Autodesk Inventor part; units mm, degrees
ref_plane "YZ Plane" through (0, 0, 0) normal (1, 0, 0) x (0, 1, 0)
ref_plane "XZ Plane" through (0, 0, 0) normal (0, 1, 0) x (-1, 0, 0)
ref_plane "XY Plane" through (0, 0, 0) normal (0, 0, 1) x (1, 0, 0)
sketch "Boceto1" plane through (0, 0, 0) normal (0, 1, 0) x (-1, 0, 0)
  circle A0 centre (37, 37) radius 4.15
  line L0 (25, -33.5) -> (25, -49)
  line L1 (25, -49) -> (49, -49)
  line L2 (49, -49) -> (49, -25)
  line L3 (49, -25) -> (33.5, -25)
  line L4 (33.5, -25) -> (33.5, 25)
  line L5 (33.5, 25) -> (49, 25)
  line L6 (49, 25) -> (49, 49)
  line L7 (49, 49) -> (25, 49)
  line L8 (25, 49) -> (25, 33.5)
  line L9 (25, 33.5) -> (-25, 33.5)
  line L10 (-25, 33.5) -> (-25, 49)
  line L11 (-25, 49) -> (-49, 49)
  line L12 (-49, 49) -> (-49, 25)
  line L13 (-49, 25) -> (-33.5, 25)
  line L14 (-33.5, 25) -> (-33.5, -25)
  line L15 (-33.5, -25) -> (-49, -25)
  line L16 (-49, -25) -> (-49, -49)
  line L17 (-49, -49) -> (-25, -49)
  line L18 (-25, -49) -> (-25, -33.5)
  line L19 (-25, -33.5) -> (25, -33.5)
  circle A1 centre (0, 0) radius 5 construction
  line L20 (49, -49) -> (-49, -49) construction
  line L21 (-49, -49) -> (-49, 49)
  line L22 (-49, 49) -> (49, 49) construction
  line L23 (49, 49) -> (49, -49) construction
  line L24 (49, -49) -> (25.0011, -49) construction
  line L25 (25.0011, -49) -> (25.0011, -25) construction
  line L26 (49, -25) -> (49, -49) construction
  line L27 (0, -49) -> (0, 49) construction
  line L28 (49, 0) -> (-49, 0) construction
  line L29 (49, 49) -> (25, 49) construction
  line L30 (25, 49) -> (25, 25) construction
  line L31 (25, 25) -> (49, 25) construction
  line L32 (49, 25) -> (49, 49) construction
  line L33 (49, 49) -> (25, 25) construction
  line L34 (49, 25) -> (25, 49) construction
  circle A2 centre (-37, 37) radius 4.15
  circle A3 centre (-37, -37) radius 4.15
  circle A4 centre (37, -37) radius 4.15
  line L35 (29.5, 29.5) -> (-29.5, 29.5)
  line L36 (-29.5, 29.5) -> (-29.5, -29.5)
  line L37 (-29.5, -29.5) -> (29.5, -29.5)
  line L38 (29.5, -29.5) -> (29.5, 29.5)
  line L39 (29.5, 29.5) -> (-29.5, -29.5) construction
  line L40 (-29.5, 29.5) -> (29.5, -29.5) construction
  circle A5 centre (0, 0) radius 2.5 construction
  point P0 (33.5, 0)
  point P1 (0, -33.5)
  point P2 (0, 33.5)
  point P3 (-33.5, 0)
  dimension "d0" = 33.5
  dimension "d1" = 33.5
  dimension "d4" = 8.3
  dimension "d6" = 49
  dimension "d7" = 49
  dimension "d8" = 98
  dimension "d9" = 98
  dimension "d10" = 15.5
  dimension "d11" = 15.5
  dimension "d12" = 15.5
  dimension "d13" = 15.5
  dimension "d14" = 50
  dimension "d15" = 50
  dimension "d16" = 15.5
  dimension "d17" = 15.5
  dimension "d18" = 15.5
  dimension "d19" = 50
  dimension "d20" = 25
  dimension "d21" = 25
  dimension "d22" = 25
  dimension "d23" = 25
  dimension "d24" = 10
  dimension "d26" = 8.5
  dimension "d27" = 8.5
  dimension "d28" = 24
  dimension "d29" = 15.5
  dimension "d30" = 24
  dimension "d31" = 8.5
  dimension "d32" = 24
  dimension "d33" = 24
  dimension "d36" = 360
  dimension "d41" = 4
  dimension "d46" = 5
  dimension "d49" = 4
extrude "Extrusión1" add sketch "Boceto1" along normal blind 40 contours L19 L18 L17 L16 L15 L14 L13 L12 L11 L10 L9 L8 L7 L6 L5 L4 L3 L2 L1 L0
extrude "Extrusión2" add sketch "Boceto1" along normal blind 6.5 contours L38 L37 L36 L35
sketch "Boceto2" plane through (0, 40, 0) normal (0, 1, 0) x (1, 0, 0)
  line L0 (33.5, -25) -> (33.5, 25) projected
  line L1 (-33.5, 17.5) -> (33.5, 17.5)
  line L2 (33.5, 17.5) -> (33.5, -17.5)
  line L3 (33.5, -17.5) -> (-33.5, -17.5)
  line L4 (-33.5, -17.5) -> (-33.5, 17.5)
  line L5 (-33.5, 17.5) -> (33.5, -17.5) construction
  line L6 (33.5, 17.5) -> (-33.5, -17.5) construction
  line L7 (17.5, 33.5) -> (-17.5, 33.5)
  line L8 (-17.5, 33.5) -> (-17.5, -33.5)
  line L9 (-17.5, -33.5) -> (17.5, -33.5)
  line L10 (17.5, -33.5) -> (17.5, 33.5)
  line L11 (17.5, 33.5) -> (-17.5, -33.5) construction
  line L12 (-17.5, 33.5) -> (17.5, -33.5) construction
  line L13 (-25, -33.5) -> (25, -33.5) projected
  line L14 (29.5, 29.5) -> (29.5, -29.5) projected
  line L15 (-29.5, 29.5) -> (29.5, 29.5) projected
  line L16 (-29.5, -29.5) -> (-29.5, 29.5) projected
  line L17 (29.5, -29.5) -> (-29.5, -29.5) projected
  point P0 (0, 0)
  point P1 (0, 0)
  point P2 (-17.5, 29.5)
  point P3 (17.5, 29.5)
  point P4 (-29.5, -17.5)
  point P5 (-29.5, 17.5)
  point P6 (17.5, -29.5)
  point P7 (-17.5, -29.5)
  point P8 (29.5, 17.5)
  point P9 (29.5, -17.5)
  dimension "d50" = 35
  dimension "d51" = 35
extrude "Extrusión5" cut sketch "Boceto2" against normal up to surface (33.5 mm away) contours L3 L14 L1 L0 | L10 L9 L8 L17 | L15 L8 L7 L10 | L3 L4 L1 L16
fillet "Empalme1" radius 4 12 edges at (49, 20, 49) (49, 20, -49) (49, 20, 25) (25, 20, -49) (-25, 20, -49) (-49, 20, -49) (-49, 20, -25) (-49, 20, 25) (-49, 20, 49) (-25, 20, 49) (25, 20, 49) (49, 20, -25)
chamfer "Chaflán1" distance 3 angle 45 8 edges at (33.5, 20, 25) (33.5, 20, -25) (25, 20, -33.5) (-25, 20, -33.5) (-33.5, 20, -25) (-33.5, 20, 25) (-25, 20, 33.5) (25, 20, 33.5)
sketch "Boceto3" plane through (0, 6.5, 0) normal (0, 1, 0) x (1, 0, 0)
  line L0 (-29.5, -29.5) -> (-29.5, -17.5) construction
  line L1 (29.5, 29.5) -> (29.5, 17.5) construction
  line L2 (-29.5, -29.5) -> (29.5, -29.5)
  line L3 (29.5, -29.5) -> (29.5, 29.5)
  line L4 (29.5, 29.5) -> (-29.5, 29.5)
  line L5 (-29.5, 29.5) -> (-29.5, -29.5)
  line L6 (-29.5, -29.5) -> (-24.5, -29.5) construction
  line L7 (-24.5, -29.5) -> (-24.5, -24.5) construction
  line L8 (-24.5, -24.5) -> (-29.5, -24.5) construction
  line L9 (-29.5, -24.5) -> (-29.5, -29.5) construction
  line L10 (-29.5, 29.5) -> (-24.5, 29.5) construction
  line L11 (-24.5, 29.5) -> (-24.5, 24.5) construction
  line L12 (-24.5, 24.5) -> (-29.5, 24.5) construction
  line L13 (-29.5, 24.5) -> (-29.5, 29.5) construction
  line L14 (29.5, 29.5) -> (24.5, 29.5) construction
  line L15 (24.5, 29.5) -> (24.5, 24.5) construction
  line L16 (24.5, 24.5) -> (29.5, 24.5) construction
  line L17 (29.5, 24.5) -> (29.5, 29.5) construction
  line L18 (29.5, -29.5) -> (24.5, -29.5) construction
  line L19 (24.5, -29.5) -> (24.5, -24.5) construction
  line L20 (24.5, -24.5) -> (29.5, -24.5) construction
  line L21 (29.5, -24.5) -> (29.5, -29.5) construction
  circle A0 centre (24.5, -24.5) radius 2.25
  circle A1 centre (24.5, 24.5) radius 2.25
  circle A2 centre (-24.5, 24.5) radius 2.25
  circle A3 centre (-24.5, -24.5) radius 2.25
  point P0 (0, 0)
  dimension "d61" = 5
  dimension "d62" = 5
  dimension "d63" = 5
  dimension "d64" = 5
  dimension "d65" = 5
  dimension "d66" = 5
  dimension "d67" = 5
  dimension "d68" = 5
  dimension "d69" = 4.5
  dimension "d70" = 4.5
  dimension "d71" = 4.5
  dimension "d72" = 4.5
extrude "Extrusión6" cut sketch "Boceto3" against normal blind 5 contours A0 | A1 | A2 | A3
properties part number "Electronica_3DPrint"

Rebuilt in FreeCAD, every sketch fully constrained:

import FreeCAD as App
import Part
import Sketcher

V = App.Vector
Q = App.Units.Quantity


def edges_at(feature, points):
    """Names of the edges that pass closest to the given points."""
    edges = feature.Shape.Edges
    near = lambda p: min(range(len(edges)), key=lambda i: edges[i].distToShape(Part.Vertex(*p))[0])
    return sorted({f"Edge{near(p) + 1}" for p in points})


def add_polygon(sketch, points):
    """Adds a closed chain of lines whose ends are joined by coincident constraints."""
    first, n = sketch.GeometryCount, len(points)
    for a, b in zip(points, points[1:] + points[:1]):
        sketch.addGeometry(Part.LineSegment(App.Vector(*a, 0), App.Vector(*b, 0)), False)
    for i in range(n):
        sketch.addConstraint(Sketcher.Constraint("Coincident", first + i, 2, first + (i + 1) % n, 1))

doc = App.newDocument("Part")
params = doc.addObject("Spreadsheet::Sheet", "Params")
for row, (alias, value) in enumerate([
    ("sketch1_diameter", "8.3 mm"),
    ("sketch1_width", "50 mm"),
    ("sketch1_width2", "24 mm"),
    ("sketch1_width3", "15.5 mm"),
    ("pad1_length", "40 mm"),
    ("sketch2_width", "59 mm"),
    ("pad2_length", "6.5 mm"),
    ("sketch3_width", "35 mm"),
    ("sketch3_width2", "4 mm"),
    ("pocket1_length", "33.5 mm"),
    ("fillet_radius", "4 mm"),
    ("chamfer_size", "3 mm"),
    ("sketch4_diameter", "4.5 mm"),
    ("pocket2_length", "5 mm"),
], start=1):
    params.set(f"A{row}", alias)
    params.set(f"B{row}", "=" + value)
    params.setAlias(f"B{row}", alias)

body = doc.addObject("PartDesign::Body", "Body")

# Sketch on XZ plane
sketch1 = doc.addObject("Sketcher::SketchObject", "Sketch")
body.addObject(sketch1)
sketch1.AttachmentSupport = (doc.XZ_Plane, [""])
sketch1.MapMode = "FlatFace"
add_polygon(sketch1, [(25, -33.5), (-25, -33.5), (-25, -49), (-49, -49), (-49, -25), (-33.5, -25), (-33.5, 25), (-49, 25), (-49, 49), (-25, 49), (-25, 33.5), (25, 33.5), (25, 49), (49, 49), (49, 25), (33.5, 25), (33.5, -25), (49, -25), (49, -49), (25, -49)])  # lines 0-19
sketch1.addGeometry(Part.Circle(V(37, -37, 0), V(0, 0, 1), 4.2), False)  # 20
add_polygon(sketch1, [(29.5, 29.5), (-29.5, 29.5), (-29.5, -29.5), (29.5, -29.5)])  # lines 21-24
sketch1.addGeometry(Part.Circle(V(-37, -37, 0), V(0, 0, 1), 4.2), False)  # 25
sketch1.addGeometry(Part.Circle(V(37, 37, 0), V(0, 0, 1), 4.2), False)  # 26
sketch1.addGeometry(Part.Circle(V(-37, 37, 0), V(0, 0, 1), 4.2), False)  # 27
sketch1.addConstraint([
    Sketcher.Constraint("Horizontal", 0),
    Sketcher.Constraint("Vertical", 1),
    Sketcher.Constraint("Horizontal", 2),
    Sketcher.Constraint("Vertical", 3),
    Sketcher.Constraint("Horizontal", 4),
    Sketcher.Constraint("Vertical", 5),
    Sketcher.Constraint("Horizontal", 6),
    Sketcher.Constraint("Vertical", 7),
    Sketcher.Constraint("Horizontal", 8),
    Sketcher.Constraint("Vertical", 9),
    Sketcher.Constraint("Horizontal", 10),
    Sketcher.Constraint("Vertical", 11),
    Sketcher.Constraint("Horizontal", 12),
    Sketcher.Constraint("Vertical", 13),
    Sketcher.Constraint("Horizontal", 14),
    Sketcher.Constraint("Vertical", 15),
    Sketcher.Constraint("Horizontal", 16),
    Sketcher.Constraint("Vertical", 17),
    Sketcher.Constraint("Horizontal", 18),
    Sketcher.Constraint("Vertical", 19),
    Sketcher.Constraint("Horizontal", 21),
    Sketcher.Constraint("Vertical", 22),
    Sketcher.Constraint("Horizontal", 23),
    Sketcher.Constraint("Vertical", 24),
    Sketcher.Constraint("Equal", 20, 25),
    Sketcher.Constraint("Equal", 25, 26),
    Sketcher.Constraint("Equal", 26, 27),
    Sketcher.Constraint("Symmetric", 25, 3, 26, 3, -1, 1),
    Sketcher.Constraint("Symmetric", 20, 3, 27, 3, -1, 1),
    Sketcher.Constraint("Symmetric", 0, 2, 10, 2, -1, 1),
    Sketcher.Constraint("Symmetric", 2, 2, 12, 2, -1, 1),
    Sketcher.Constraint("Symmetric", 4, 2, 14, 2, -1, 1),
    Sketcher.Constraint("Symmetric", 6, 2, 16, 2, -1, 1),
    Sketcher.Constraint("Symmetric", 8, 2, 18, 2, -1, 1),
    Sketcher.Constraint("Symmetric", 21, 2, 23, 2, -1, 1),
    Sketcher.Constraint("Symmetric", 20, 3, 25, 3, -2),
    Sketcher.Constraint("Symmetric", 8, 2, 11, 2, -2),
    Sketcher.Constraint("Symmetric", 6, 2, 13, 2, -2),
    Sketcher.Constraint("Equal", 16, 1),
    Sketcher.Constraint("Equal", 18, 3),
    Sketcher.Constraint("Equal", 10, 5),
    Sketcher.Constraint("Equal", 23, 22),
    Sketcher.Constraint("Diameter", 20, Q("8.3 mm")),
    Sketcher.Constraint("DistanceX", 0, 2, 0, 1, Q("50 mm")),
    Sketcher.Constraint("DistanceX", 2, 2, 2, 1, Q("24 mm")),
    Sketcher.Constraint("DistanceX", 4, 1, 4, 2, Q("15.5 mm")),
    Sketcher.Constraint("DistanceX", 5, 2, 21, 2, Q("4 mm")),
    Sketcher.Constraint("DistanceX", -1, 1, 20, 3, Q("37 mm")),
    Sketcher.Constraint("DistanceY", 20, 3, -1, 1, Q("37 mm")),
])
sketch1.setExpression("Constraints[66]", "Params.sketch1_diameter")
sketch1.setExpression("Constraints[67]", "Params.sketch1_width")
sketch1.setExpression("Constraints[68]", "Params.sketch1_width2")
sketch1.setExpression("Constraints[69]", "Params.sketch1_width3")
pad1 = doc.addObject("PartDesign::Pad", "Pad")
body.addObject(pad1)
pad1.Profile = sketch1
pad1.setExpression("Length", "Params.pad1_length")
pad1.Reversed = True

# Sketch on XZ plane
sketch2 = doc.addObject("Sketcher::SketchObject", "Sketch001")
body.addObject(sketch2)
sketch2.AttachmentSupport = (doc.XZ_Plane, [""])
sketch2.MapMode = "FlatFace"
add_polygon(sketch2, [(-30, -30), (-30, 30), (30, 30), (30, -30)])  # lines 0-3
sketch2.addConstraint([
    Sketcher.Constraint("Vertical", 0),
    Sketcher.Constraint("Horizontal", 1),
    Sketcher.Constraint("Vertical", 2),
    Sketcher.Constraint("Horizontal", 3),
    Sketcher.Constraint("Symmetric", 0, 2, 2, 2, -1, 1),
    Sketcher.Constraint("Equal", 3, 0),
    Sketcher.Constraint("DistanceX", 1, 1, 1, 2, Q("59 mm")),
])
sketch2.setExpression("Constraints[10]", "Params.sketch2_width")
pad2 = doc.addObject("PartDesign::Pad", "Pad001")
body.addObject(pad2)
pad2.Profile = sketch2
pad2.setExpression("Length", "Params.pad2_length")
pad2.Reversed = True

# Sketch on XZ plane
sketch3 = doc.addObject("Sketcher::SketchObject", "Sketch002")
body.addObject(sketch3)
sketch3.AttachmentSupport = (doc.XZ_Plane, [""])
sketch3.MapMode = "FlatFace"
sketch3.AttachmentOffset = App.Placement(V(0, 0, -40), App.Rotation())
add_polygon(sketch3, [(29.5, 17.5), (33.5, 17.5), (33.5, -17.5), (29.5, -17.5)])  # lines 0-3
add_polygon(sketch3, [(17.5, 33.5), (17.5, 29.5), (-17.5, 29.5), (-17.5, 33.5)])  # lines 4-7
add_polygon(sketch3, [(-17.5, -29.5), (17.5, -29.5), (17.5, -33.5), (-17.5, -33.5)])  # lines 8-11
add_polygon(sketch3, [(-33.5, 17.5), (-29.5, 17.5), (-29.5, -17.5), (-33.5, -17.5)])  # lines 12-15
sketch3.addConstraint([
    Sketcher.Constraint("Horizontal", 0),
    Sketcher.Constraint("Vertical", 1),
    Sketcher.Constraint("Horizontal", 2),
    Sketcher.Constraint("Vertical", 3),
    Sketcher.Constraint("Vertical", 4),
    Sketcher.Constraint("Horizontal", 5),
    Sketcher.Constraint("Vertical", 6),
    Sketcher.Constraint("Horizontal", 7),
    Sketcher.Constraint("Horizontal", 8),
    Sketcher.Constraint("Vertical", 9),
    Sketcher.Constraint("Horizontal", 10),
    Sketcher.Constraint("Vertical", 11),
    Sketcher.Constraint("Horizontal", 12),
    Sketcher.Constraint("Vertical", 13),
    Sketcher.Constraint("Horizontal", 14),
    Sketcher.Constraint("Vertical", 15),
    Sketcher.Constraint("Symmetric", 5, 2, 8, 2, -1, 1),
    Sketcher.Constraint("Symmetric", 7, 2, 10, 2, -1, 1),
    Sketcher.Constraint("Symmetric", 2, 2, 12, 2, -1, 1),
    Sketcher.Constraint("Symmetric", 0, 2, 14, 2, -1, 1),
    Sketcher.Constraint("Horizontal", 3, 2, 12, 2),
    Sketcher.Constraint("Vertical", 7, 2, 8, 2),
    Sketcher.Constraint("Equal", 10, 1),
    Sketcher.Constraint("Equal", 14, 4),
    Sketcher.Constraint("DistanceX", 5, 2, 5, 1, Q("35 mm")),
    Sketcher.Constraint("DistanceX", 0, 1, 0, 2, Q("4 mm")),
    Sketcher.Constraint("DistanceX", 4, 2, 3, 2, Q("12 mm")),
    Sketcher.Constraint("DistanceY", 3, 2, 4, 2, Q("12 mm")),
])
sketch3.setExpression("Constraints[40]", "Params.sketch3_width")
sketch3.setExpression("Constraints[41]", "Params.sketch3_width2")
pocket1 = doc.addObject("PartDesign::Pocket", "Pocket")
body.addObject(pocket1)
pocket1.Profile = sketch3
pocket1.setExpression("Length", "Params.pocket1_length")
pocket1.Reversed = True
doc.recompute()

fillet = doc.addObject("PartDesign::Fillet", "Fillet")
body.addObject(fillet)
fillet.Base = (pocket1, edges_at(pocket1, [
    (49, 20, 49),
    (49, 20, -49),
    (49, 20, 25),
    (25, 20, -49),
    (-25, 20, -49),
    (-49, 20, -49),
    (-49, 20, -25),
    (-49, 20, 25),
    (-49, 20, 49),
    (-25, 20, 49),
    (25, 20, 49),
    (49, 20, -25),
]))
fillet.setExpression("Radius", "Params.fillet_radius")
doc.recompute()

chamfer = doc.addObject("PartDesign::Chamfer", "Chamfer")
body.addObject(chamfer)
chamfer.Base = (fillet, edges_at(fillet, [
    (33.5, 20, 25),
    (33.5, 20, -25),
    (25, 20, -33.5),
    (-25, 20, -33.5),
    (-33.5, 20, -25),
    (-33.5, 20, 25),
    (-25, 20, 33.5),
    (25, 20, 33.5),
]))
chamfer.setExpression("Size", "Params.chamfer_size")

# Sketch on XZ plane
sketch4 = doc.addObject("Sketcher::SketchObject", "Sketch003")
body.addObject(sketch4)
sketch4.AttachmentSupport = (doc.XZ_Plane, [""])
sketch4.MapMode = "FlatFace"
sketch4.AttachmentOffset = App.Placement(V(0, 0, -6.5), App.Rotation())
sketch4.addGeometry([
    Part.Circle(V(24.5, 24.5, 0), V(0, 0, 1), 2.2),
    Part.Circle(V(24.5, -24.5, 0), V(0, 0, 1), 2.2),
    Part.Circle(V(-24.5, -24.5, 0), V(0, 0, 1), 2.2),
    Part.Circle(V(-24.5, 24.5, 0), V(0, 0, 1), 2.2),
], False)
sketch4.addConstraint([
    Sketcher.Constraint("Equal", 0, 1),
    Sketcher.Constraint("Equal", 1, 2),
    Sketcher.Constraint("Equal", 2, 3),
    Sketcher.Constraint("Symmetric", 0, 3, 2, 3, -1, 1),
    Sketcher.Constraint("Symmetric", 1, 3, 3, 3, -1, 1),
    Sketcher.Constraint("Symmetric", 1, 3, 2, 3, -2),
    Sketcher.Constraint("Diameter", 0, Q("4.5 mm")),
    Sketcher.Constraint("DistanceY", 1, 3, 0, 3, Q("49 mm")),
    Sketcher.Constraint("DistanceX", 2, 3, 1, 3, Q("49 mm")),
])
sketch4.setExpression("Constraints[6]", "Params.sketch4_diameter")
pocket2 = doc.addObject("PartDesign::Pocket", "Pocket001")
body.addObject(pocket2)
pocket2.Profile = sketch4
pocket2.setExpression("Length", "Params.pocket2_length")
pocket2.Reversed = True

doc.recompute()
